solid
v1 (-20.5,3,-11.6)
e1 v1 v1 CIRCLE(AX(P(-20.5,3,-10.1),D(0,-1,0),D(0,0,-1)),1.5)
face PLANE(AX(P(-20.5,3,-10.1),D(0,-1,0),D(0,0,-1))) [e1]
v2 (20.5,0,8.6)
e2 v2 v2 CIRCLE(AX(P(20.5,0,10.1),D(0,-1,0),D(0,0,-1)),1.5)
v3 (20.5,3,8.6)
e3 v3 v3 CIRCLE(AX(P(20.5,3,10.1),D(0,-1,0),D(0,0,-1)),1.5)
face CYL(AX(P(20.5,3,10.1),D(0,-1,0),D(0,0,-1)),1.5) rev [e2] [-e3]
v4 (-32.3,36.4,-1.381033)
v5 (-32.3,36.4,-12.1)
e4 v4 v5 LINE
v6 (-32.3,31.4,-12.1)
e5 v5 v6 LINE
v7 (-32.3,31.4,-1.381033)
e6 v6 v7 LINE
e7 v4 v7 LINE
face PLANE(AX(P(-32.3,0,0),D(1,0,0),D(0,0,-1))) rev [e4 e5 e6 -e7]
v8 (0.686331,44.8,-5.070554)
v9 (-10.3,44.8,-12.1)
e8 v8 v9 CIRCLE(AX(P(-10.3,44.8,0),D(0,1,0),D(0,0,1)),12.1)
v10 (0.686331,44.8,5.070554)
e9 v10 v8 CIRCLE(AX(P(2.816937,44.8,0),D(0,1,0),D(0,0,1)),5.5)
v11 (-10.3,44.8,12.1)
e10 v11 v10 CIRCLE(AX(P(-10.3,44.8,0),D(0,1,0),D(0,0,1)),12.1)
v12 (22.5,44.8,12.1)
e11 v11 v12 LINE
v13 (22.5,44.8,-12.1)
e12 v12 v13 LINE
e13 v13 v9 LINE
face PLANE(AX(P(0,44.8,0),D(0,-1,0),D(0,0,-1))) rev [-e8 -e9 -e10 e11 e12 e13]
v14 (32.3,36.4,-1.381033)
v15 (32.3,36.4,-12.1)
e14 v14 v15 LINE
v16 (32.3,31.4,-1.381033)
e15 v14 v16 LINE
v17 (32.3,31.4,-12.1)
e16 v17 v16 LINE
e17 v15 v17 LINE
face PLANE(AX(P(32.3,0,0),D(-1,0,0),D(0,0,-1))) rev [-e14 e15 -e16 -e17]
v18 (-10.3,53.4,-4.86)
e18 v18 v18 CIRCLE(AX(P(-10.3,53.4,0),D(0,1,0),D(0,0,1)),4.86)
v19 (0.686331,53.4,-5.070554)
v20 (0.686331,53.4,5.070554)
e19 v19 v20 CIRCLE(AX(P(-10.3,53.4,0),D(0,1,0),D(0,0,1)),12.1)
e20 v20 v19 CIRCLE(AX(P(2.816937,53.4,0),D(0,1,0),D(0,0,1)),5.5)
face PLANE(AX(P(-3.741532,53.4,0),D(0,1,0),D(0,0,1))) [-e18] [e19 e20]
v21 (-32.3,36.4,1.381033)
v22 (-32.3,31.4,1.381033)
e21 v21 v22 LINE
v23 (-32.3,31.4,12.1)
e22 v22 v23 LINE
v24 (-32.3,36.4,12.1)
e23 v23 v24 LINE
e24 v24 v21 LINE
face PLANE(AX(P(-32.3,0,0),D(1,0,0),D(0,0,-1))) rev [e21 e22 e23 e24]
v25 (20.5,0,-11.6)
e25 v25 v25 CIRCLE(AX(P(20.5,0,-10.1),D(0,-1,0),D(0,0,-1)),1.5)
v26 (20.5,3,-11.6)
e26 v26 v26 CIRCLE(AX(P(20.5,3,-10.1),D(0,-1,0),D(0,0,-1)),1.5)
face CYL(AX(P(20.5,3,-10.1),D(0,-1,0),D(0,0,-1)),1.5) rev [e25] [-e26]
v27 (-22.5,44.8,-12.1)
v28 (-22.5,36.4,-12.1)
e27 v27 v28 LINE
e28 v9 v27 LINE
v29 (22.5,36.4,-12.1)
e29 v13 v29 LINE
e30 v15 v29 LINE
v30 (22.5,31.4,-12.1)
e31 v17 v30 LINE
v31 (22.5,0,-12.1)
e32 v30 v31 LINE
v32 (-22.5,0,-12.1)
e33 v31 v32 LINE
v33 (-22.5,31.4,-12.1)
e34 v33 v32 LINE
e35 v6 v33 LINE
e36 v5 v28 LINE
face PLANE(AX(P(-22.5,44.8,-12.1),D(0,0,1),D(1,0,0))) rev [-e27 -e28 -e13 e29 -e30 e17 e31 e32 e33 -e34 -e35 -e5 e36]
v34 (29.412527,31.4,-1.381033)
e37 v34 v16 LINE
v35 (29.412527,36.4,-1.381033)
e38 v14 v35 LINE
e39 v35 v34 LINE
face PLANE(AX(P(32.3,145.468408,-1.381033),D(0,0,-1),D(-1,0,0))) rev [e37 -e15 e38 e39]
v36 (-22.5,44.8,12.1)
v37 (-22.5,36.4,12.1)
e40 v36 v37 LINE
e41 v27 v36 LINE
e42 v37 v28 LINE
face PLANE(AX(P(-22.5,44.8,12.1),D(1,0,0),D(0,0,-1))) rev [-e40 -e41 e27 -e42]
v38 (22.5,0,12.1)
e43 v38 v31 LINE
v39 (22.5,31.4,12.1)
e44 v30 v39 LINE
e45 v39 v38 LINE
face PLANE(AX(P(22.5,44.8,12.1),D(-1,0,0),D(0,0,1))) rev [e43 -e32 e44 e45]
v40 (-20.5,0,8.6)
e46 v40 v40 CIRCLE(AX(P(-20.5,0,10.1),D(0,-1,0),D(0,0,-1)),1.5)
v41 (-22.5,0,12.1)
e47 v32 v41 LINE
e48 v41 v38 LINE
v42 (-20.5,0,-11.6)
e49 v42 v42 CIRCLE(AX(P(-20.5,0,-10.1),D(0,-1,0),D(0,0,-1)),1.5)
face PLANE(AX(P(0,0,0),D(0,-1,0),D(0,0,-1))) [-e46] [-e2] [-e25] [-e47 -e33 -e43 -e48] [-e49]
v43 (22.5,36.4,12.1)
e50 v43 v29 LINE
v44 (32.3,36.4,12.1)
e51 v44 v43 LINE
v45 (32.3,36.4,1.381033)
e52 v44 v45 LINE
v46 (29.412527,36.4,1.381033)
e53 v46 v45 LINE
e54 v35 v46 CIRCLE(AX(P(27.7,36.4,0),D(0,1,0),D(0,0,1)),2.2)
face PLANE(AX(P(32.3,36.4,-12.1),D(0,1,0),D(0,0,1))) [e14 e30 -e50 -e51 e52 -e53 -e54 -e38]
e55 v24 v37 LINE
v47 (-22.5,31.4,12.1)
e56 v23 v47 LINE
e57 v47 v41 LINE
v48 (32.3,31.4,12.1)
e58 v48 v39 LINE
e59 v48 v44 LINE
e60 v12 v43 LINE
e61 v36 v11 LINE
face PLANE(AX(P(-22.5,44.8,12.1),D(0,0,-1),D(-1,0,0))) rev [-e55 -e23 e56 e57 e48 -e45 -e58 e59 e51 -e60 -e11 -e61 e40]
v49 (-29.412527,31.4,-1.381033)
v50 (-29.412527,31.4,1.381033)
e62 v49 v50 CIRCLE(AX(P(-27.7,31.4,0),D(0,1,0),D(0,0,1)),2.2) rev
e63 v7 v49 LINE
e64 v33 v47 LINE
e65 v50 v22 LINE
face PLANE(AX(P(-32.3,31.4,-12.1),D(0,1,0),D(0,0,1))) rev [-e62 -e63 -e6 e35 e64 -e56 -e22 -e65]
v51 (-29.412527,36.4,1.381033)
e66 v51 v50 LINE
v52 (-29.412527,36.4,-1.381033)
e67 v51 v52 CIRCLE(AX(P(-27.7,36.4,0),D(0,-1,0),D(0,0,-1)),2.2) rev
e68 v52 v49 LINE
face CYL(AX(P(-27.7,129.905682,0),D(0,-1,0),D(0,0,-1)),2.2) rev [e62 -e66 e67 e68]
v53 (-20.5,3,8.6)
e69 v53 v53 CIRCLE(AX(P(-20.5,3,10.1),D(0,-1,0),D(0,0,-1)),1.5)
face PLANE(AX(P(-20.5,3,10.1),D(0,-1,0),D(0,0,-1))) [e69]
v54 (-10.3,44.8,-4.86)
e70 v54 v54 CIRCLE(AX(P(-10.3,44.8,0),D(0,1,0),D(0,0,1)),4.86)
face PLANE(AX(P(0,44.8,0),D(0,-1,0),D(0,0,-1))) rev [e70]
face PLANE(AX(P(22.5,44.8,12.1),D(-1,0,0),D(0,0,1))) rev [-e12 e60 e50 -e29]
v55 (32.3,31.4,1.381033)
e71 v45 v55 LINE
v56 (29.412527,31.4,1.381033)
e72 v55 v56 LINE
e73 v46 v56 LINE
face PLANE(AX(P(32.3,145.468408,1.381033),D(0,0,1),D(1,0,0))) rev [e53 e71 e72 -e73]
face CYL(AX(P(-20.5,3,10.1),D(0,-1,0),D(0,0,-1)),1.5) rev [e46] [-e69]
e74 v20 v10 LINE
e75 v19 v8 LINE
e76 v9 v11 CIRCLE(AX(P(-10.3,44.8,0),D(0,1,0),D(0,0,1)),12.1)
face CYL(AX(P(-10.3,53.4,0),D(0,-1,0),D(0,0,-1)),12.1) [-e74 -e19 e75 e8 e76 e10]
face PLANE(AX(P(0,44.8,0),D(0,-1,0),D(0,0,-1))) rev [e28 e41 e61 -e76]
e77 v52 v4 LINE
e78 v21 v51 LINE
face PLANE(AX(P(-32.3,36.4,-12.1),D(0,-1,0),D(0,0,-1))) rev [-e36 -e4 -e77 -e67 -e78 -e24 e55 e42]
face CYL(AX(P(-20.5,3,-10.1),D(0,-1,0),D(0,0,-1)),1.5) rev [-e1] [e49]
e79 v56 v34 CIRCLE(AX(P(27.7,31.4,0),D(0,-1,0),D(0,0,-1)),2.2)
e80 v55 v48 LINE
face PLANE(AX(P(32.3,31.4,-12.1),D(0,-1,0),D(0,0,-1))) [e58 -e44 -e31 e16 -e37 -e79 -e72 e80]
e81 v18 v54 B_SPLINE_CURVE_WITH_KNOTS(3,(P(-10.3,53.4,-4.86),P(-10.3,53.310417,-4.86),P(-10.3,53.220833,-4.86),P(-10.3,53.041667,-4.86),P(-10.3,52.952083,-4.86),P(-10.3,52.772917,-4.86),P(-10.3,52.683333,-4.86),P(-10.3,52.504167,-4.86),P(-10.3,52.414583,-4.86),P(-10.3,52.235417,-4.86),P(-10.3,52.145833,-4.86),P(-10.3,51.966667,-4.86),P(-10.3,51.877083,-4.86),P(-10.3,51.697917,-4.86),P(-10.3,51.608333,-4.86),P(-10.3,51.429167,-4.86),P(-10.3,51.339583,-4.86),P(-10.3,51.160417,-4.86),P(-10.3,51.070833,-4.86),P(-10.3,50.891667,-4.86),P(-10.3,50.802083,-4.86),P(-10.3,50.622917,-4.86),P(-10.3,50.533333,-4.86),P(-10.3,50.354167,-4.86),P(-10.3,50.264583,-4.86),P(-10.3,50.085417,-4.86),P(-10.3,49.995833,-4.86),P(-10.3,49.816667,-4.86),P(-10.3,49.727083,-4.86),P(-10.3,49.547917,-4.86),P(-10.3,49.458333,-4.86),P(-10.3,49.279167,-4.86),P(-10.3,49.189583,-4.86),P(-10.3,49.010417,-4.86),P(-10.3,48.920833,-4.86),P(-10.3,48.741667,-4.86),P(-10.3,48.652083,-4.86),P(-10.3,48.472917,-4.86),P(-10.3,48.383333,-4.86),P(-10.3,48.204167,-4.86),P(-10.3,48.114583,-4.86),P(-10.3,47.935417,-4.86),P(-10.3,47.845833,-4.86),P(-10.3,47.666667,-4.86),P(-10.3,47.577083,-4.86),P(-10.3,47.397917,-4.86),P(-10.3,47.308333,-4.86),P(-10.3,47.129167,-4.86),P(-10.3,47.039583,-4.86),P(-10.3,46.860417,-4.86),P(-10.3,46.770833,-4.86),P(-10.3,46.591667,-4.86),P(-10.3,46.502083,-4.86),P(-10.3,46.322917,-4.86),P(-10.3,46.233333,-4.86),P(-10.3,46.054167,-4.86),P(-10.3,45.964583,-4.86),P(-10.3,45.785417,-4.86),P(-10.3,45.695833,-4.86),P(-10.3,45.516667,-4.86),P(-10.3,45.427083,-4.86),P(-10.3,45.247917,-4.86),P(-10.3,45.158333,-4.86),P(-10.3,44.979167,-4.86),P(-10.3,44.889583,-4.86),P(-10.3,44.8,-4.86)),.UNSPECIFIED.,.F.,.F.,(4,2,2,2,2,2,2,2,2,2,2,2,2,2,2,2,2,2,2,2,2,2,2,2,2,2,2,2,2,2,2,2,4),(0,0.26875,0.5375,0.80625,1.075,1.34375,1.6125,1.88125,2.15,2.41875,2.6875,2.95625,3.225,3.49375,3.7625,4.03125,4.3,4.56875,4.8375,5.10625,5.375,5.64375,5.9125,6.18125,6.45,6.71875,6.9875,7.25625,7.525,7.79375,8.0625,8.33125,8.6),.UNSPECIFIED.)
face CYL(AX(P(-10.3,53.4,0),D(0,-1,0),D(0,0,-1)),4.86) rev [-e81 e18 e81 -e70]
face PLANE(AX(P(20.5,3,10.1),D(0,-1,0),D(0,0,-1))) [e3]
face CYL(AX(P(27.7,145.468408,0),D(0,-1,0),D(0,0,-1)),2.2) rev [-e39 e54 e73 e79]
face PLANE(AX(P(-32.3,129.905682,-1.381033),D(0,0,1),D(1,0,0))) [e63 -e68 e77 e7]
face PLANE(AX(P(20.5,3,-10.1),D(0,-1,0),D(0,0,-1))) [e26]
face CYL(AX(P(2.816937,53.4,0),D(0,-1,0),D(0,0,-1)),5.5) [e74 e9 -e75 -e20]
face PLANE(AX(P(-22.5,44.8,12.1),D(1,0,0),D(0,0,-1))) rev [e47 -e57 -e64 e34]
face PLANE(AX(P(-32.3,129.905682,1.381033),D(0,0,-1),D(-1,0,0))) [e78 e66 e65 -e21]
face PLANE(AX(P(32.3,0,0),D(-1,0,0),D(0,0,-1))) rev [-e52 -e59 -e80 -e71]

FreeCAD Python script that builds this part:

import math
import FreeCAD as App
import Part
import Sketcher
from FreeCAD import Vector

doc = App.newDocument("Part")
params = doc.addObject("Spreadsheet::Sheet", "Params")
for row, (alias, value) in enumerate([
    ("sketch1_width", "45 mm"),
    ("sketch1_height", "24.2 mm"),
    ("pad1_length", "44.8 mm"),
    ("sketch2_width", "5 mm"),
    ("sketch2_height", "24.2 mm"),
    ("pad2_length", "9.8 mm"),
    ("sketch3_radius", "2.2 mm"),
    ("pocket1_length", "102.292771 mm"),
    ("sketch4_radius", "12.1 mm"),
    ("sketch4_radius2", "5.5 mm"),
    ("sketch4_diameter", "9.72 mm"),
    ("pad3_length", "8.6 mm"),
    ("sketch5_diameter", "3 mm"),
    ("pocket2_length", "3 mm"),
], start=1):
    params.set(f"A{row}", alias)
    params.set(f"B{row}", "=" + value)
    params.setAlias(f"B{row}", alias)

body = doc.addObject("PartDesign::Body", "Body")

# Sketch on XZ plane
sketch1 = body.newObject("Sketcher::SketchObject", "Sketch")
sketch1.AttachmentSupport = (doc.getObject("XZ_Plane"), [""])
sketch1.MapMode = "FlatFace"
sketch1.addGeometry(Part.LineSegment(Vector(-22.5, -12.1, 0), Vector(-22.5, 12.1, 0)), False)
sketch1.addGeometry(Part.LineSegment(Vector(-22.5, 12.1, 0), Vector(22.5, 12.1, 0)), False)
sketch1.addGeometry(Part.LineSegment(Vector(22.5, 12.1, 0), Vector(22.5, -12.1, 0)), False)
sketch1.addGeometry(Part.LineSegment(Vector(22.5, -12.1, 0), Vector(-22.5, -12.1, 0)), False)
sketch1.addConstraint(Sketcher.Constraint("Coincident", 0, 2, 1, 1))
sketch1.addConstraint(Sketcher.Constraint("Coincident", 1, 2, 2, 1))
sketch1.addConstraint(Sketcher.Constraint("Coincident", 2, 2, 3, 1))
sketch1.addConstraint(Sketcher.Constraint("Coincident", 3, 2, 0, 1))
sketch1.addConstraint(Sketcher.Constraint("Vertical", 0))
sketch1.addConstraint(Sketcher.Constraint("Horizontal", 1))
sketch1.addConstraint(Sketcher.Constraint("Vertical", 2))
sketch1.addConstraint(Sketcher.Constraint("Horizontal", 3))
sketch1.addConstraint(Sketcher.Constraint("Symmetric", 0, 2, 2, 2, -1, 1))
sketch1.addConstraint(Sketcher.Constraint("DistanceX", 1, 1, 1, 2, 45.0))
sketch1.addConstraint(Sketcher.Constraint("DistanceY", 0, 1, 0, 2, 24.2))
sketch1.setExpression("Constraints[9]", "Params.sketch1_width")
sketch1.setExpression("Constraints[10]", "Params.sketch1_height")
pad1 = body.newObject("PartDesign::Pad", "Pad")
pad1.Profile = sketch1
pad1.setExpression("Length", "Params.pad1_length")
pad1.Reversed = True

# Sketch on YZ plane
sketch2 = body.newObject("Sketcher::SketchObject", "Sketch001")
sketch2.AttachmentSupport = (doc.getObject("YZ_Plane"), [""])
sketch2.MapMode = "FlatFace"
sketch2.AttachmentOffset = App.Placement(Vector(0, 0, -22.5), App.Rotation())
sketch2.addGeometry(Part.LineSegment(Vector(36.4, -12.1, 0), Vector(31.4, -12.1, 0)), False)
sketch2.addGeometry(Part.LineSegment(Vector(31.4, -12.1, 0), Vector(31.4, 12.1, 0)), False)
sketch2.addGeometry(Part.LineSegment(Vector(31.4, 12.1, 0), Vector(36.4, 12.1, 0)), False)
sketch2.addGeometry(Part.LineSegment(Vector(36.4, 12.1, 0), Vector(36.4, -12.1, 0)), False)
sketch2.addConstraint(Sketcher.Constraint("Coincident", 0, 2, 1, 1))
sketch2.addConstraint(Sketcher.Constraint("Coincident", 1, 2, 2, 1))
sketch2.addConstraint(Sketcher.Constraint("Coincident", 2, 2, 3, 1))
sketch2.addConstraint(Sketcher.Constraint("Coincident", 3, 2, 0, 1))
sketch2.addConstraint(Sketcher.Constraint("Horizontal", 0))
sketch2.addConstraint(Sketcher.Constraint("Vertical", 1))
sketch2.addConstraint(Sketcher.Constraint("Horizontal", 2))
sketch2.addConstraint(Sketcher.Constraint("Vertical", 3))
sketch2.addConstraint(Sketcher.Constraint("DistanceX", 0, 2, 0, 1, 5.0))
sketch2.addConstraint(Sketcher.Constraint("DistanceY", 1, 1, 1, 2, 24.2))
sketch2.addConstraint(Sketcher.Constraint("DistanceX", -1, 1, 0, 2, 31.4))
sketch2.addConstraint(Sketcher.Constraint("DistanceY", 0, 2, -1, 1, 12.1))
sketch2.setExpression("Constraints[8]", "Params.sketch2_width")
sketch2.setExpression("Constraints[9]", "Params.sketch2_height")
pad2 = body.newObject("PartDesign::Pad", "Pad001")
pad2.Profile = sketch2
pad2.setExpression("Length", "Params.pad2_length")
pad2.Reversed = True

# Sketch on XZ plane
sketch3 = body.newObject("Sketcher::SketchObject", "Sketch002")
sketch3.AttachmentSupport = (doc.getObject("XZ_Plane"), [""])
sketch3.MapMode = "FlatFace"
sketch3.AttachmentOffset = App.Placement(Vector(0, 0, -36.4), App.Rotation())
sketch3.addGeometry(Part.LineSegment(Vector(-29.412527, -1.381033, 0), Vector(-32.3, -1.381033, 0)), False)
sketch3.addGeometry(Part.LineSegment(Vector(-32.3, -1.381033, 0), Vector(-32.3, 1.381033, 0)), False)
sketch3.addGeometry(Part.LineSegment(Vector(-32.3, 1.381033, 0), Vector(-29.412527, 1.381033, 0)), False)
sketch3.addGeometry(Part.ArcOfCircle(Part.Circle(Vector(-27.7, 0, 0), Vector(0, 0, 1), 2.2), math.radians(-141.116268), math.radians(141.116268)), False)
sketch3.addConstraint(Sketcher.Constraint("Coincident", 0, 2, 1, 1))
sketch3.addConstraint(Sketcher.Constraint("Coincident", 1, 2, 2, 1))
sketch3.addConstraint(Sketcher.Constraint("Coincident", 2, 2, 3, 2))
sketch3.addConstraint(Sketcher.Constraint("Coincident", 3, 1, 0, 1))
sketch3.addConstraint(Sketcher.Constraint("Horizontal", 0))
sketch3.addConstraint(Sketcher.Constraint("Vertical", 1))
sketch3.addConstraint(Sketcher.Constraint("Horizontal", 2))
sketch3.addConstraint(Sketcher.Constraint("Symmetric", 2, 2, 3, 1, -1))
sketch3.addConstraint(Sketcher.Constraint("Radius", 3, 2.2))
sketch3.addConstraint(Sketcher.Constraint("DistanceX", 3, 3, -1, 1, 27.7))
sketch3.addConstraint(Sketcher.Constraint("DistanceX", 0, 2, -1, 1, 32.3))
sketch3.addConstraint(Sketcher.Constraint("DistanceX", 0, 2, 0, 1, 2.887473))
sketch3.setExpression("Constraints[8]", "Params.sketch3_radius")
pocket1 = body.newObject("PartDesign::Pocket", "Pocket")
pocket1.Profile = sketch3
pocket1.setExpression("Length", "Params.pocket1_length")
pocket1.Midplane = True
doc.recompute()

mirrored = body.newObject("PartDesign::Mirrored", "Mirrored")
mirrored.Originals = [pad2, pocket1]
mirrored.MirrorPlane = (doc.getObject("YZ_Plane"), [""])
body.Tip = mirrored

# Sketch on XZ plane
sketch4 = body.newObject("Sketcher::SketchObject", "Sketch003")
sketch4.AttachmentSupport = (doc.getObject("XZ_Plane"), [""])
sketch4.MapMode = "FlatFace"
sketch4.AttachmentOffset = App.Placement(Vector(0, 0, -44.8), App.Rotation())
sketch4.addGeometry(Part.ArcOfCircle(Part.Circle(Vector(-10.3, 0, 0), Vector(0, 0, 1), 12.1), math.radians(24.774881), math.radians(335.225119)), False)
sketch4.addGeometry(Part.ArcOfCircle(Part.Circle(Vector(2.816937, 0, 0), Vector(0, 0, 1), 5.5), math.radians(-112.791748), math.radians(112.791748)), False)
sketch4.addGeometry(Part.Circle(Vector(-10.3, 0, 0), Vector(0, 0, 1), 4.86), False)
sketch4.addConstraint(Sketcher.Constraint("Coincident", 0, 1, 1, 2))
sketch4.addConstraint(Sketcher.Constraint("Coincident", 1, 1, 0, 2))
sketch4.addConstraint(Sketcher.Constraint("Coincident", 2, 3, 0, 3))
sketch4.addConstraint(Sketcher.Constraint("Symmetric", 0, 1, 1, 1, -1))
sketch4.addConstraint(Sketcher.Constraint("Radius", 0, 12.1))
sketch4.addConstraint(Sketcher.Constraint("Radius", 1, 5.5))
sketch4.addConstraint(Sketcher.Constraint("Diameter", 2, 9.72))
sketch4.addConstraint(Sketcher.Constraint("DistanceX", 0, 3, -1, 1, 10.3))
sketch4.addConstraint(Sketcher.Constraint("DistanceX", -1, 1, 0, 1, 0.686331))
sketch4.setExpression("Constraints[4]", "Params.sketch4_radius")
sketch4.setExpression("Constraints[5]", "Params.sketch4_radius2")
sketch4.setExpression("Constraints[6]", "Params.sketch4_diameter")
pad3 = body.newObject("PartDesign::Pad", "Pad002")
pad3.Profile = sketch4
pad3.setExpression("Length", "Params.pad3_length")
pad3.Reversed = True

# Sketch on XZ plane
sketch5 = body.newObject("Sketcher::SketchObject", "Sketch004")
sketch5.AttachmentSupport = (doc.getObject("XZ_Plane"), [""])
sketch5.MapMode = "FlatFace"
sketch5.addGeometry(Part.Circle(Vector(-20.5, 10.1, 0), Vector(0, 0, 1), 1.5), False)
sketch5.addGeometry(Part.Circle(Vector(20.5, 10.1, 0), Vector(0, 0, 1), 1.5), False)
sketch5.addGeometry(Part.Circle(Vector(20.5, -10.1, 0), Vector(0, 0, 1), 1.5), False)
sketch5.addGeometry(Part.Circle(Vector(-20.5, -10.1, 0), Vector(0, 0, 1), 1.5), False)
sketch5.addConstraint(Sketcher.Constraint("Equal", 0, 1))
sketch5.addConstraint(Sketcher.Constraint("Equal", 1, 2))
sketch5.addConstraint(Sketcher.Constraint("Equal", 2, 3))
sketch5.addConstraint(Sketcher.Constraint("Symmetric", 0, 3, 2, 3, -1, 1))
sketch5.addConstraint(Sketcher.Constraint("Symmetric", 1, 3, 3, 3, -1, 1))
sketch5.addConstraint(Sketcher.Constraint("Symmetric", 0, 3, 1, 3, -2))
sketch5.addConstraint(Sketcher.Constraint("Diameter", 0, 3.0))
sketch5.addConstraint(Sketcher.Constraint("DistanceX", 0, 3, 1, 3, 41.0))
sketch5.addConstraint(Sketcher.Constraint("DistanceY", -1, 1, 0, 3, 10.1))
sketch5.setExpression("Constraints[6]", "Params.sketch5_diameter")
pocket2 = body.newObject("PartDesign::Pocket", "Pocket001")
pocket2.Profile = sketch5
pocket2.setExpression("Length", "Params.pocket2_length")

doc.recompute()
